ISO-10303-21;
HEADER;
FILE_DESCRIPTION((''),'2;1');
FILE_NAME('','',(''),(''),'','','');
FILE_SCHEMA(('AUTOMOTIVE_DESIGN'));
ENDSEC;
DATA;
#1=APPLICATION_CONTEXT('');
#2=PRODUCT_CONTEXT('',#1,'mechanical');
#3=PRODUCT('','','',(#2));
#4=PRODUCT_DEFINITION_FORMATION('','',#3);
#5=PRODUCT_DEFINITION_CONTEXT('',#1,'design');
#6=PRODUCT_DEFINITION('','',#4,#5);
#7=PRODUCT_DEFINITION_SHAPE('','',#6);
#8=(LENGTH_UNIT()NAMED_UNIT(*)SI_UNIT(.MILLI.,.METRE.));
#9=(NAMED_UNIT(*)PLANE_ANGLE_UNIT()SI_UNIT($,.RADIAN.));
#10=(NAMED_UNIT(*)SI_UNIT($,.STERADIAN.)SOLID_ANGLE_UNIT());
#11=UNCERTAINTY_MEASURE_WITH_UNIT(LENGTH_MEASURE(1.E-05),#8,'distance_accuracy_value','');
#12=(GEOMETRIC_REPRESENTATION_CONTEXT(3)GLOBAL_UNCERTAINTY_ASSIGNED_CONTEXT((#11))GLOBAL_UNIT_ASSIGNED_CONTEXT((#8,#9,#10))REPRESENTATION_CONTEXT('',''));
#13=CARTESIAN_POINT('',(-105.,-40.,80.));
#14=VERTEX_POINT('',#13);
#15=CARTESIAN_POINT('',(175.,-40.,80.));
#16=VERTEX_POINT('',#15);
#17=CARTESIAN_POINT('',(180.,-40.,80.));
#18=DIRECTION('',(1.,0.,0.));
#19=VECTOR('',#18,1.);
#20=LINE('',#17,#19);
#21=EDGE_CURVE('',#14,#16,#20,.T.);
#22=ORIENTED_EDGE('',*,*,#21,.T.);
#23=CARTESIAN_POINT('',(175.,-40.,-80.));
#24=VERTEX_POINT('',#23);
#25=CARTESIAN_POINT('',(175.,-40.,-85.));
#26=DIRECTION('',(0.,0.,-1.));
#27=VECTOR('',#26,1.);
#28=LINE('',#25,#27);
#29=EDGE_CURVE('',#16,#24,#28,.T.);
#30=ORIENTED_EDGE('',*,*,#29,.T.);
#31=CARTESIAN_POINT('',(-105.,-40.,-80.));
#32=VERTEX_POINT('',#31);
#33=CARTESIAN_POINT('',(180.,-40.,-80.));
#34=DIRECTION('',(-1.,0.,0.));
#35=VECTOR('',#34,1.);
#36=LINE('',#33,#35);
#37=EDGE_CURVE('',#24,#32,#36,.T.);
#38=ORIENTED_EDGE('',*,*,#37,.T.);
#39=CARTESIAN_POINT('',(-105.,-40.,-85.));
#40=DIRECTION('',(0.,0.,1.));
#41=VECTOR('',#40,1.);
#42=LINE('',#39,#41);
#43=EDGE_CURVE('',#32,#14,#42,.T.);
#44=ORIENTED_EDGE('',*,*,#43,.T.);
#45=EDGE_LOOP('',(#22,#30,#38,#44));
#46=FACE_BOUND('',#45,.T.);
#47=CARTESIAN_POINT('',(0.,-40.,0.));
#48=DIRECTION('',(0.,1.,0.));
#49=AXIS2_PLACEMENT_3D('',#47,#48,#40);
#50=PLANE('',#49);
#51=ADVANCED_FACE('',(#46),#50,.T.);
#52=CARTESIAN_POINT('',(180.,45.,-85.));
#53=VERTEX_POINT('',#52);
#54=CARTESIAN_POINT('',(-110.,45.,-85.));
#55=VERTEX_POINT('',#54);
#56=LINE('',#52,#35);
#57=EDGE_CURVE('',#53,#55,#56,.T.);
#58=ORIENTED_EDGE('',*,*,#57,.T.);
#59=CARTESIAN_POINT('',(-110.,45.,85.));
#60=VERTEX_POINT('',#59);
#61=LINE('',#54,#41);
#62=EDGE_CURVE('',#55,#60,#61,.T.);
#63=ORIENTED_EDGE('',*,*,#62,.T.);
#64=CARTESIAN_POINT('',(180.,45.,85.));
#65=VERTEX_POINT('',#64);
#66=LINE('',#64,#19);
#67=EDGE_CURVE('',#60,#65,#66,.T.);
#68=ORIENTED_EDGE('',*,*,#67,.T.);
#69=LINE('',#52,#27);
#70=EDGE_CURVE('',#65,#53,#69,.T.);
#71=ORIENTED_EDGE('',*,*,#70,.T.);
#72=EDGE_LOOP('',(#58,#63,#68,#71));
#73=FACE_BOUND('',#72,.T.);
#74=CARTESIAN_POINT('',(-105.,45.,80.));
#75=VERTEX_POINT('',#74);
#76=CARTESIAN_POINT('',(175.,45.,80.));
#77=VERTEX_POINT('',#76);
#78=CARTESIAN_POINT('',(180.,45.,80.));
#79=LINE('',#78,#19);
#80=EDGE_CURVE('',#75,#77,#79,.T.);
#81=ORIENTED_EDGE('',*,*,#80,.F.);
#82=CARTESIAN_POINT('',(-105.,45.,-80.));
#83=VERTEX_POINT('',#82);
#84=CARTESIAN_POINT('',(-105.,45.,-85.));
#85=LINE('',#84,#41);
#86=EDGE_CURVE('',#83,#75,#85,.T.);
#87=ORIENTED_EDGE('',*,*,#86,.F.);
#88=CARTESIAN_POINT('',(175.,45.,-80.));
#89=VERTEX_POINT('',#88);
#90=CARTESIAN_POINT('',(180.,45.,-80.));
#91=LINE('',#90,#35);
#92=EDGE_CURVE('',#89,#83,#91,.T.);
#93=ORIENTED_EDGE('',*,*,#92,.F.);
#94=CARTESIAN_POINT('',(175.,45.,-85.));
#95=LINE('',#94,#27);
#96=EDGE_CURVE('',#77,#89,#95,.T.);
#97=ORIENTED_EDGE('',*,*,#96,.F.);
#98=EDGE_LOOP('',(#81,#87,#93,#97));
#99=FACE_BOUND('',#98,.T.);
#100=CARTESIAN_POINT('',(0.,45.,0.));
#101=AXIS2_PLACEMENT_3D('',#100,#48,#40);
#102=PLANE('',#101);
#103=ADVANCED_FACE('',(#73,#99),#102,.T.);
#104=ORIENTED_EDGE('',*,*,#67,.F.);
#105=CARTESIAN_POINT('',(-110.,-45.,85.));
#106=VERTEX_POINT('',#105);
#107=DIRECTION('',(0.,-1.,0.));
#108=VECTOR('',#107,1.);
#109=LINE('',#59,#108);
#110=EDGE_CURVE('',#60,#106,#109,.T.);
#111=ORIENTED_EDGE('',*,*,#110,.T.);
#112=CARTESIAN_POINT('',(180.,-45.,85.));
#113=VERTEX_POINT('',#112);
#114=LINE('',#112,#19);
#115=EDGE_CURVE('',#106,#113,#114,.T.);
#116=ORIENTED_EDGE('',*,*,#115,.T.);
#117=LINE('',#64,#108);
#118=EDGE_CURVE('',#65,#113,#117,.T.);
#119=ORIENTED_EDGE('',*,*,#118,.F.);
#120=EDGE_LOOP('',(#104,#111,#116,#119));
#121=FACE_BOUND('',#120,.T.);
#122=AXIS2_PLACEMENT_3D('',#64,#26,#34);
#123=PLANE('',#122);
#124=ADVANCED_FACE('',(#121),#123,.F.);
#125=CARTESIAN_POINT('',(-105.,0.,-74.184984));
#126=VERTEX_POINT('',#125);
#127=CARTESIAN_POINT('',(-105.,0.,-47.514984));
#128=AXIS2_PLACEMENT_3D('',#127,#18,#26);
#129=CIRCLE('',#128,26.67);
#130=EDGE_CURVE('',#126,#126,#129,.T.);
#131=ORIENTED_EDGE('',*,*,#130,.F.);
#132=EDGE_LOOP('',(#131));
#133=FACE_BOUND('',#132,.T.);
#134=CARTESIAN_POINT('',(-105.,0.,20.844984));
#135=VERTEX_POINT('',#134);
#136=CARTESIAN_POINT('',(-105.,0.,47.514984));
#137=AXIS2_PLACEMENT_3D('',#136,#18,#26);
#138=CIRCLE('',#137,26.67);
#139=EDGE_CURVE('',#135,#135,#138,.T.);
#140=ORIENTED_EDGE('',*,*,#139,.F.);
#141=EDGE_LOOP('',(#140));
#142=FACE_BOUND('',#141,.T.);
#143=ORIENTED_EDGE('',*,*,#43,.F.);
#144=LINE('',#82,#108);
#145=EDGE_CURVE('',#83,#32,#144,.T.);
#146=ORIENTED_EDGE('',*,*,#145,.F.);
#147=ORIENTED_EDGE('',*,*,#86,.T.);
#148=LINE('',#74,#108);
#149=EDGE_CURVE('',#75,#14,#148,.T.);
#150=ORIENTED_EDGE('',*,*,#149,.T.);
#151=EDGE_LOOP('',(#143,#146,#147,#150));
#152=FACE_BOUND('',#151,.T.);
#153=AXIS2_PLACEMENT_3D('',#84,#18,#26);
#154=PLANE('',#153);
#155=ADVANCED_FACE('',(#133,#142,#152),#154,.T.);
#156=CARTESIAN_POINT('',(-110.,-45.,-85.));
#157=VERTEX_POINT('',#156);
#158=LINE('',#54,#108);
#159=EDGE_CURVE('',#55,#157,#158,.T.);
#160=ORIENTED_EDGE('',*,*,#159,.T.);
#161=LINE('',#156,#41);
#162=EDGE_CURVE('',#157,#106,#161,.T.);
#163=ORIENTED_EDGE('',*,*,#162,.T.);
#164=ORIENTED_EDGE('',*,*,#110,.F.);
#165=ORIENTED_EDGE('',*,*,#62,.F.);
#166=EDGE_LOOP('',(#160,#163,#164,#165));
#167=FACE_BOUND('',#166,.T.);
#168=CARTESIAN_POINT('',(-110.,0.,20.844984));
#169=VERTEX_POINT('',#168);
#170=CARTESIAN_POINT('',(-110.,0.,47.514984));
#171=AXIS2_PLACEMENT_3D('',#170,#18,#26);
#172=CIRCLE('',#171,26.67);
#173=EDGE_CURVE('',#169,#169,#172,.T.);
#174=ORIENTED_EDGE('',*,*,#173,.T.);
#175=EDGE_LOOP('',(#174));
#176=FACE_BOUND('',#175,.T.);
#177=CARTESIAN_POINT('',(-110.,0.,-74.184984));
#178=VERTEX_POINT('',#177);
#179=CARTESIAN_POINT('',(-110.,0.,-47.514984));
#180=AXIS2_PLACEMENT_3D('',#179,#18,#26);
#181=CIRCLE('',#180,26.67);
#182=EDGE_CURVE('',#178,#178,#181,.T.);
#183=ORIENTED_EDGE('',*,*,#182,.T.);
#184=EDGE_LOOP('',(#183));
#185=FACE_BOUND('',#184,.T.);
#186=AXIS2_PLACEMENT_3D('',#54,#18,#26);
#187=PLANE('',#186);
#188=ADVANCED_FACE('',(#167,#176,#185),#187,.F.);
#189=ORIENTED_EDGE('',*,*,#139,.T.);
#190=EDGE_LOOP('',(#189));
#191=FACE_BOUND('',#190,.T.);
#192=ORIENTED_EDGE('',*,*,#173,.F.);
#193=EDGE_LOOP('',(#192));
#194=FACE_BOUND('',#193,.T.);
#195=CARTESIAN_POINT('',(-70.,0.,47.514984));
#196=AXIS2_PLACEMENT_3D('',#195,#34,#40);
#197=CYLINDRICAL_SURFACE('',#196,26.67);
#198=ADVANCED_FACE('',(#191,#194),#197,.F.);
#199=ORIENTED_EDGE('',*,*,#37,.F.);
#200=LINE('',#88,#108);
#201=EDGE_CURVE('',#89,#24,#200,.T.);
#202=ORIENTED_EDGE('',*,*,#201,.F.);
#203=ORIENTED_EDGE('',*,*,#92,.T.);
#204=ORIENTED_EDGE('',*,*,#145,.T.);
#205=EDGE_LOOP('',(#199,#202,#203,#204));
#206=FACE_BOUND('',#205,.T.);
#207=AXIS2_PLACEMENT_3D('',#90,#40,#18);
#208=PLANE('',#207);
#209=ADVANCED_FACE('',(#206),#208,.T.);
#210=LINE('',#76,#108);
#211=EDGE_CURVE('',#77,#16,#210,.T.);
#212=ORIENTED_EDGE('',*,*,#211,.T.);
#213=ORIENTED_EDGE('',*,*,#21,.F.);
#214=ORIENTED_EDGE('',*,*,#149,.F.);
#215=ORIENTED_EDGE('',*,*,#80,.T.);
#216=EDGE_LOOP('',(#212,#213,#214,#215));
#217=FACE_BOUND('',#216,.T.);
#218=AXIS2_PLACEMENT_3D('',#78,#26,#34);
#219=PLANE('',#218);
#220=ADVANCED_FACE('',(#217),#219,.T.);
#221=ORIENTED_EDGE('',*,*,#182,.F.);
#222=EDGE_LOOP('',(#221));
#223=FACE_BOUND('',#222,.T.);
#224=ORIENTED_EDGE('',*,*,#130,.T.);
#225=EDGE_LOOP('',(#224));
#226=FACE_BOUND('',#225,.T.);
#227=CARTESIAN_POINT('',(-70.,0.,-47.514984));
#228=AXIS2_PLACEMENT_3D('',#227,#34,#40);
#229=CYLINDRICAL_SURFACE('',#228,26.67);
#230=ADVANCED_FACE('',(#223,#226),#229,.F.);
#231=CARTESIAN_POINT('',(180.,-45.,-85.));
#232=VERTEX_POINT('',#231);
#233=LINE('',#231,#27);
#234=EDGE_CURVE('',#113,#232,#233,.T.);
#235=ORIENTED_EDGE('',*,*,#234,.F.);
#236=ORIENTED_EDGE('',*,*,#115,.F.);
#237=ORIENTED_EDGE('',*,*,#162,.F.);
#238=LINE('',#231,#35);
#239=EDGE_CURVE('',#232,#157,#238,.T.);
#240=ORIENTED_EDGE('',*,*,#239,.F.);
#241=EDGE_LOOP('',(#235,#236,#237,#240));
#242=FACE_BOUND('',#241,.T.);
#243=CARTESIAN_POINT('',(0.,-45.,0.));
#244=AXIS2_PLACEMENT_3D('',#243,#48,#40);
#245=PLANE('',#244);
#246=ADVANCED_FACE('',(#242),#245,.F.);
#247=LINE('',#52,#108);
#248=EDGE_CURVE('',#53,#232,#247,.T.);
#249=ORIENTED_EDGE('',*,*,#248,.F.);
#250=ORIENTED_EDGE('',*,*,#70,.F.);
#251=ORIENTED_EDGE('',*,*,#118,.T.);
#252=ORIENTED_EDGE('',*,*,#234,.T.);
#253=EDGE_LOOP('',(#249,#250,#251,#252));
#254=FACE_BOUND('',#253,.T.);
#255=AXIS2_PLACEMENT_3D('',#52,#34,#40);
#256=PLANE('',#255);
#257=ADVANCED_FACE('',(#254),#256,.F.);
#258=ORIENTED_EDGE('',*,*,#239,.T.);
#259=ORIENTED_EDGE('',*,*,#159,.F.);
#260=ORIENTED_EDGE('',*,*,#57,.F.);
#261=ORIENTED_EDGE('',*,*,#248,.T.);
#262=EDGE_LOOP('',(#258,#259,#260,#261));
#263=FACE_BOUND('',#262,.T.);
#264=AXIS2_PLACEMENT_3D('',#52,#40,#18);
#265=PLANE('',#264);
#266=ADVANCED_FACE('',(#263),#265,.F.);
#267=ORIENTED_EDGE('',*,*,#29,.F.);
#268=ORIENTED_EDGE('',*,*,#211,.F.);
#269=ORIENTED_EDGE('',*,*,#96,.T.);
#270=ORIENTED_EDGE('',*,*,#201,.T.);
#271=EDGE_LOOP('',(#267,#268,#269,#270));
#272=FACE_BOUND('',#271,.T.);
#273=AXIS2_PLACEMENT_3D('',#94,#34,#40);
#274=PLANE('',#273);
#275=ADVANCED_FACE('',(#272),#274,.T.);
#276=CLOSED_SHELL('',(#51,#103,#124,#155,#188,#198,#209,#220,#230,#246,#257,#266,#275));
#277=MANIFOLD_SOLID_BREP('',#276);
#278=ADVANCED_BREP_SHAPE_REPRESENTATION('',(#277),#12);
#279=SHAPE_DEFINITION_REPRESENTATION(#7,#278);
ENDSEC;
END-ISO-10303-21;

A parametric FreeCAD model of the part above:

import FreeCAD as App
import Part
import Sketcher
from FreeCAD import Vector


def faces_at(feature, points):
    """Names of the faces that lie closest to the given points."""
    faces = feature.Shape.Faces
    near = lambda p: min(range(len(faces)), key=lambda i: faces[i].distToShape(Part.Vertex(*p))[0])
    return sorted({f"Face{near(p) + 1}" for p in points})

doc = App.newDocument("Part")
body = doc.addObject("PartDesign::Body", "Body")

# Sketch on XZ plane
sketch1 = doc.addObject("Sketcher::SketchObject", "Sketch")
body.addObject(sketch1)
sketch1.AttachmentSupport = (doc.XZ_Plane, [""])
sketch1.MapMode = "FlatFace"
sketch1.addGeometry([
    Part.LineSegment(Vector(-110, -85, 0), Vector(-110, 85, 0)),
    Part.LineSegment(Vector(-110, 85, 0), Vector(180, 85, 0)),
    Part.LineSegment(Vector(180, 85, 0), Vector(180, -85, 0)),
    Part.LineSegment(Vector(180, -85, 0), Vector(-110, -85, 0)),
], False)
sketch1.addConstraint([
    Sketcher.Constraint("Coincident", 0, 2, 1, 1),
    Sketcher.Constraint("Coincident", 1, 2, 2, 1),
    Sketcher.Constraint("Coincident", 2, 2, 3, 1),
    Sketcher.Constraint("Coincident", 3, 2, 0, 1),
    Sketcher.Constraint("Vertical", 0),
    Sketcher.Constraint("Horizontal", 1),
    Sketcher.Constraint("Vertical", 2),
    Sketcher.Constraint("Horizontal", 3),
    Sketcher.Constraint("DistanceX", 1, 1, 1, 2, 290.0),
    Sketcher.Constraint("DistanceY", 0, 1, 0, 2, 170.0),
    Sketcher.Constraint("DistanceX", 0, 2, -1, 1, 110.0),
    Sketcher.Constraint("DistanceY", -1, 1, 0, 2, 85.0),
])
pad1 = doc.addObject("PartDesign::Pad", "Pad")
body.addObject(pad1)
pad1.Profile = sketch1
pad1.Length = 90
pad1.Midplane = True
doc.recompute()

thickness = doc.addObject("PartDesign::Thickness", "Thickness")
body.addObject(thickness)
thickness.Base = (pad1, faces_at(pad1, [(35, 45, 0)]))
thickness.Value = 5
thickness.Reversed = True
thickness.Join = "Intersection"

# Sketch on YZ plane
sketch2 = doc.addObject("Sketcher::SketchObject", "Sketch001")
body.addObject(sketch2)
sketch2.AttachmentSupport = (doc.YZ_Plane, [""])
sketch2.MapMode = "FlatFace"
sketch2.AttachmentOffset = App.Placement(Vector(0, 0, -110), App.Rotation())
sketch2.addGeometry([
    Part.Circle(Vector(0, -48, 0), Vector(0, 0, 1), 27),
    Part.Circle(Vector(0, 48, 0), Vector(0, 0, 1), 27),
], False)
sketch2.addConstraint([
    Sketcher.Constraint("Equal", 0, 1),
    Sketcher.Constraint("Symmetric", 0, 3, 1, 3, -1, 1),
    Sketcher.Constraint("PointOnObject", 0, 3, -2),
    Sketcher.Constraint("Diameter", 0, 53.34),
    Sketcher.Constraint("DistanceY", 0, 3, 1, 3, 95.029969),
])
pocket1 = doc.addObject("PartDesign::Pocket", "Pocket")
body.addObject(pocket1)
pocket1.Profile = sketch2
pocket1.Length = 80
pocket1.Midplane = True

doc.recompute()
